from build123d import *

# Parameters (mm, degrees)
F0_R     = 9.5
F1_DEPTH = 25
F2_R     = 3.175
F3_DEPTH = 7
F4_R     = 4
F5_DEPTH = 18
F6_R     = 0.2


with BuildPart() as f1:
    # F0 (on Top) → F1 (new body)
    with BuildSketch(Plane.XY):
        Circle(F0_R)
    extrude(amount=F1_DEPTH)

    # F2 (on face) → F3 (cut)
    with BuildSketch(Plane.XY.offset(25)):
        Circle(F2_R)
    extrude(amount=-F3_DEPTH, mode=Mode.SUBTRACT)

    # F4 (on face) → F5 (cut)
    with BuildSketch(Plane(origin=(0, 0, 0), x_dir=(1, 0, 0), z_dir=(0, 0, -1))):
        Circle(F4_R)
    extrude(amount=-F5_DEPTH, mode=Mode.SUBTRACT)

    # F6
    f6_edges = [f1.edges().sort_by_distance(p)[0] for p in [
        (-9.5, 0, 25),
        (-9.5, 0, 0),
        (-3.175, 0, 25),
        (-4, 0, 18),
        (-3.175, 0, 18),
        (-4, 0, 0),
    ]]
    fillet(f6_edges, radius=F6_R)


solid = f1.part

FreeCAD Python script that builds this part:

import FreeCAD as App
import Part
import Sketcher
from FreeCAD import Vector


def edges_at(feature, points):
    """Names of the edges that pass closest to the given points."""
    edges = feature.Shape.Edges
    near = lambda p: min(range(len(edges)), key=lambda i: edges[i].distToShape(Part.Vertex(*p))[0])
    return sorted({f"Edge{near(p) + 1}" for p in points})

doc = App.newDocument("Part")
params = doc.addObject("Spreadsheet::Sheet", "Params")
for row, (alias, value) in enumerate([
    ("sketch1_diameter", "19 mm"),
    ("pad1_length", "25 mm"),
    ("sketch2_diameter", "6.35 mm"),
    ("pocket1_length", "7 mm"),
    ("sketch3_diameter", "8 mm"),
    ("pocket2_length", "18 mm"),
    ("fillet_radius", "0.2 mm"),
], start=1):
    params.set(f"A{row}", alias)
    params.set(f"B{row}", "=" + value)
    params.setAlias(f"B{row}", alias)

body = doc.addObject("PartDesign::Body", "Body")

# Sketch on XY plane
sketch1 = doc.addObject("Sketcher::SketchObject", "Sketch")
body.addObject(sketch1)
sketch1.AttachmentSupport = (doc.XY_Plane, [""])
sketch1.MapMode = "FlatFace"
sketch1.addGeometry(Part.Circle(Vector(0, 0, 0), Vector(0, 0, 1), 9.5), False)
sketch1.addConstraint([
    Sketcher.Constraint("Coincident", 0, 3, -1, 1),
    Sketcher.Constraint("Diameter", 0, 19.0),
])
sketch1.setExpression("Constraints[1]", "Params.sketch1_diameter")
pad1 = doc.addObject("PartDesign::Pad", "Pad")
body.addObject(pad1)
pad1.Profile = sketch1
pad1.setExpression("Length", "Params.pad1_length")

# Sketch on XY plane
sketch2 = doc.addObject("Sketcher::SketchObject", "Sketch001")
body.addObject(sketch2)
sketch2.AttachmentSupport = (doc.XY_Plane, [""])
sketch2.MapMode = "FlatFace"
sketch2.AttachmentOffset = App.Placement(Vector(0, 0, 25), App.Rotation())
sketch2.addGeometry(Part.Circle(Vector(0, 0, 0), Vector(0, 0, 1), 3.175), False)
sketch2.addConstraint([
    Sketcher.Constraint("Coincident", 0, 3, -1, 1),
    Sketcher.Constraint("Diameter", 0, 6.35),
])
sketch2.setExpression("Constraints[1]", "Params.sketch2_diameter")
pocket1 = doc.addObject("PartDesign::Pocket", "Pocket")
body.addObject(pocket1)
pocket1.Profile = sketch2
pocket1.setExpression("Length", "Params.pocket1_length")

# Sketch on XY plane
sketch3 = doc.addObject("Sketcher::SketchObject", "Sketch002")
body.addObject(sketch3)
sketch3.AttachmentSupport = (doc.XY_Plane, [""])
sketch3.MapMode = "FlatFace"
sketch3.addGeometry(Part.Circle(Vector(0, 0, 0), Vector(0, 0, 1), 4), False)
sketch3.addConstraint([
    Sketcher.Constraint("Coincident", 0, 3, -1, 1),
    Sketcher.Constraint("Diameter", 0, 8.0),
])
sketch3.setExpression("Constraints[1]", "Params.sketch3_diameter")
pocket2 = doc.addObject("PartDesign::Pocket", "Pocket001")
body.addObject(pocket2)
pocket2.Profile = sketch3
pocket2.setExpression("Length", "Params.pocket2_length")
pocket2.Reversed = True
doc.recompute()

fillet = doc.addObject("PartDesign::Fillet", "Fillet")
body.addObject(fillet)
fillet.Base = (pocket2, edges_at(pocket2, [
    (-9.5, 0, 25),
    (-9.5, 0, 0),
    (-3.175, 0, 25),
    (-4, 0, 18),
    (-3.175, 0, 18),
    (-4, 0, 0),
]))
fillet.setExpression("Radius", "Params.fillet_radius")

doc.recompute()
